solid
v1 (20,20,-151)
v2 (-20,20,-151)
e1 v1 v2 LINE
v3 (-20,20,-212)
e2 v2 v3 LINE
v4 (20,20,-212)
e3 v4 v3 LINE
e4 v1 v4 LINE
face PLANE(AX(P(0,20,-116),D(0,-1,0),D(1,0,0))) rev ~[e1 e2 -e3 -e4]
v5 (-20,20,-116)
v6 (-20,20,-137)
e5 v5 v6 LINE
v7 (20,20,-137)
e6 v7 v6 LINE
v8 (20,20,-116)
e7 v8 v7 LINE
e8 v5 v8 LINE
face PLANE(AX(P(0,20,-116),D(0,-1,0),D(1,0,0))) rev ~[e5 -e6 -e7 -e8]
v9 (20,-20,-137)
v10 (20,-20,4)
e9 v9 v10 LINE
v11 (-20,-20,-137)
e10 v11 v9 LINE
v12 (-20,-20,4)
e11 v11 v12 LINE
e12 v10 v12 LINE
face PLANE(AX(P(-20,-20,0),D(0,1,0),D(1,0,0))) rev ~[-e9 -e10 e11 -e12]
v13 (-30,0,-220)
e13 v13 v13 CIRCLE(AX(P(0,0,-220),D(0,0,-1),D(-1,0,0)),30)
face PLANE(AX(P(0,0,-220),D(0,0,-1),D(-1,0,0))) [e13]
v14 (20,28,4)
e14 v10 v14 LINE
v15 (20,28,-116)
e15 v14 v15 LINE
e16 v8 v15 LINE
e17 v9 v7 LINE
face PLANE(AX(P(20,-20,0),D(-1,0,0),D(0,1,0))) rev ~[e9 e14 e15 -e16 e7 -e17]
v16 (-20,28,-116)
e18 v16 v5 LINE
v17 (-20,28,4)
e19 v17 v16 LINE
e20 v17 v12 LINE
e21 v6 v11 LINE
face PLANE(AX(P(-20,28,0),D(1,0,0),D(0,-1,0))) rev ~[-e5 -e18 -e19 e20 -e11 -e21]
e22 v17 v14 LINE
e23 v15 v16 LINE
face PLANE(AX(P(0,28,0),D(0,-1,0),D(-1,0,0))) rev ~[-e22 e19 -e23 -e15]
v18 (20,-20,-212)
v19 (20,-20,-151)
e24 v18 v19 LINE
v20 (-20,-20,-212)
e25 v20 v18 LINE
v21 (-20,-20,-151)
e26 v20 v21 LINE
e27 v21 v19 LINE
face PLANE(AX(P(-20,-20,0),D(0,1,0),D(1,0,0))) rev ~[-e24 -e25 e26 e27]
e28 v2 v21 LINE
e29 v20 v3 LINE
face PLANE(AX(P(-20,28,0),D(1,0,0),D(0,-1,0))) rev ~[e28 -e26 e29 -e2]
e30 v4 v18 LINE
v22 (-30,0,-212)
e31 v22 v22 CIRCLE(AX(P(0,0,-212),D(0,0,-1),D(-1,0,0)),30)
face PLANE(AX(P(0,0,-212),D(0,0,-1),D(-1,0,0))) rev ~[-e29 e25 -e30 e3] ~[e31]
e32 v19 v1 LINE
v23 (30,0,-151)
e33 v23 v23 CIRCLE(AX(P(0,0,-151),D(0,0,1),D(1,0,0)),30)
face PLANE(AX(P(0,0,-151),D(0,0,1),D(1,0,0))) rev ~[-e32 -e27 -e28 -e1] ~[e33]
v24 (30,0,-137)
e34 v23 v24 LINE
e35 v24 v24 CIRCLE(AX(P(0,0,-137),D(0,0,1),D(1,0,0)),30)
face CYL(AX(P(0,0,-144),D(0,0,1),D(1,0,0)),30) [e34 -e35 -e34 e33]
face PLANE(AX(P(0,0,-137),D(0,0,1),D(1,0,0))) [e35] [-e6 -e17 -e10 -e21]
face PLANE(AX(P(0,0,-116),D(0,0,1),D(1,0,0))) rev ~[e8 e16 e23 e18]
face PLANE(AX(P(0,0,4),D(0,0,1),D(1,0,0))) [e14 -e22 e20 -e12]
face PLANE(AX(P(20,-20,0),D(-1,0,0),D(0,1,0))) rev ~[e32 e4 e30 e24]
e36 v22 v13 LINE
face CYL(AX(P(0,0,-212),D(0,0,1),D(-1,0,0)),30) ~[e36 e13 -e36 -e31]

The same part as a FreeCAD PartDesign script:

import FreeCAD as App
import Part
import Sketcher
Q = App.Units.Quantity


def add_polygon(sketch, points):
    """Adds a closed chain of lines whose ends are joined by coincident constraints."""
    first, n = sketch.GeometryCount, len(points)
    for a, b in zip(points, points[1:] + points[:1]):
        sketch.addGeometry(Part.LineSegment(App.Vector(*a, 0), App.Vector(*b, 0)), False)
    for i in range(n):
        sketch.addConstraint(Sketcher.Constraint("Coincident", first + i, 2, first + (i + 1) % n, 1))

doc = App.newDocument("Part")
params = doc.addObject("Spreadsheet::Sheet", "Params")
for row, (alias, value) in enumerate([
    ("sketch1_width", "40 mm"),
    ("pad1_length", "4 mm"),
    ("pad1_length2", "116 mm"),
    ("sketch2_width", "40 mm"),
    ("pad2_length", "96 mm"),
    ("sketch3_diameter", "60 mm"),
    ("pad3_length", "14 mm"),
    ("sketch4_diameter", "60 mm"),
    ("pad4_length", "8 mm"),
], start=1):
    params.set(f"A{row}", alias)
    params.set(f"B{row}", "=" + value)
    params.setAlias(f"B{row}", alias)

body = doc.addObject("PartDesign::Body", "Body")

sketch1 = body.newObject("Sketcher::SketchObject", "Sketch")
sketch1.AttachmentSupport = (doc.getObject("XY_Plane"), [""])
sketch1.MapMode = "FlatFace"
add_polygon(sketch1, [(-20, 28), (-20, -20), (20, -20), (20, 28)])
sketch1.addConstraint(Sketcher.Constraint("Vertical", 0))
sketch1.addConstraint(Sketcher.Constraint("Horizontal", 1))
sketch1.addConstraint(Sketcher.Constraint("Vertical", 2))
sketch1.addConstraint(Sketcher.Constraint("Horizontal", 3))
sketch1.addConstraint(Sketcher.Constraint("DistanceX", 1, 1, 1, 2, Q("40 mm")))
sketch1.addConstraint(Sketcher.Constraint("DistanceX", 0, 2, -1, 1, Q("20 mm")))
sketch1.addConstraint(Sketcher.Constraint("DistanceY", 0, 2, -1, 1, Q("20 mm")))
sketch1.addConstraint(Sketcher.Constraint("DistanceY", -1, 1, 2, 2, Q("28 mm")))
sketch1.setExpression("Constraints[8]", "Params.sketch1_width")
pad1 = body.newObject("PartDesign::Pad", "Pad")
pad1.Profile = sketch1
pad1.Type = "TwoLengths"
pad1.setExpression("Length", "Params.pad1_length")
pad1.setExpression("Length2", "Params.pad1_length2")

sketch2 = body.newObject("Sketcher::SketchObject", "Sketch001")
sketch2.AttachmentSupport = (doc.getObject("XY_Plane"), [""])
sketch2.MapMode = "FlatFace"
sketch2.AttachmentOffset = App.Placement(App.Vector(0, 0, -116), App.Rotation())
add_polygon(sketch2, [(20, 20), (20, -20), (-20, -20), (-20, 20)])
sketch2.addConstraint(Sketcher.Constraint("Vertical", 0))
sketch2.addConstraint(Sketcher.Constraint("Horizontal", 1))
sketch2.addConstraint(Sketcher.Constraint("Vertical", 2))
sketch2.addConstraint(Sketcher.Constraint("Horizontal", 3))
sketch2.addConstraint(Sketcher.Constraint("Symmetric", 0, 2, 2, 2, -1, 1))
sketch2.addConstraint(Sketcher.Constraint("Equal", 3, 0))
sketch2.addConstraint(Sketcher.Constraint("DistanceX", 1, 2, 1, 1, Q("40 mm")))
sketch2.setExpression("Constraints[10]", "Params.sketch2_width")
pad2 = body.newObject("PartDesign::Pad", "Pad001")
pad2.Profile = sketch2
pad2.setExpression("Length", "Params.pad2_length")
pad2.Reversed = True

sketch3 = body.newObject("Sketcher::SketchObject", "Sketch002")
sketch3.AttachmentSupport = (doc.getObject("XY_Plane"), [""])
sketch3.MapMode = "FlatFace"
sketch3.AttachmentOffset = App.Placement(App.Vector(0, 0, -144), App.Rotation())
sketch3.addGeometry(Part.Circle(App.Vector(0, 0, 0), App.Vector(0, 0, 1), 30), False)
sketch3.addConstraint(Sketcher.Constraint("Coincident", 0, 3, -1, 1))
sketch3.addConstraint(Sketcher.Constraint("Diameter", 0, Q("60 mm")))
sketch3.setExpression("Constraints[1]", "Params.sketch3_diameter")
pad3 = body.newObject("PartDesign::Pad", "Pad002")
pad3.Profile = sketch3
pad3.setExpression("Length", "Params.pad3_length")
pad3.Midplane = True

sketch4 = body.newObject("Sketcher::SketchObject", "Sketch003")
sketch4.AttachmentSupport = (doc.getObject("XY_Plane"), [""])
sketch4.MapMode = "FlatFace"
sketch4.AttachmentOffset = App.Placement(App.Vector(0, 0, -212), App.Rotation())
sketch4.addGeometry(Part.Circle(App.Vector(0, 0, 0), App.Vector(0, 0, 1), 30), False)
sketch4.addConstraint(Sketcher.Constraint("Coincident", 0, 3, -1, 1))
sketch4.addConstraint(Sketcher.Constraint("Diameter", 0, Q("60 mm")))
sketch4.setExpression("Constraints[1]", "Params.sketch4_diameter")
pad4 = body.newObject("PartDesign::Pad", "Pad003")
pad4.Profile = sketch4
pad4.setExpression("Length", "Params.pad4_length")
pad4.Reversed = True

doc.recompute()
